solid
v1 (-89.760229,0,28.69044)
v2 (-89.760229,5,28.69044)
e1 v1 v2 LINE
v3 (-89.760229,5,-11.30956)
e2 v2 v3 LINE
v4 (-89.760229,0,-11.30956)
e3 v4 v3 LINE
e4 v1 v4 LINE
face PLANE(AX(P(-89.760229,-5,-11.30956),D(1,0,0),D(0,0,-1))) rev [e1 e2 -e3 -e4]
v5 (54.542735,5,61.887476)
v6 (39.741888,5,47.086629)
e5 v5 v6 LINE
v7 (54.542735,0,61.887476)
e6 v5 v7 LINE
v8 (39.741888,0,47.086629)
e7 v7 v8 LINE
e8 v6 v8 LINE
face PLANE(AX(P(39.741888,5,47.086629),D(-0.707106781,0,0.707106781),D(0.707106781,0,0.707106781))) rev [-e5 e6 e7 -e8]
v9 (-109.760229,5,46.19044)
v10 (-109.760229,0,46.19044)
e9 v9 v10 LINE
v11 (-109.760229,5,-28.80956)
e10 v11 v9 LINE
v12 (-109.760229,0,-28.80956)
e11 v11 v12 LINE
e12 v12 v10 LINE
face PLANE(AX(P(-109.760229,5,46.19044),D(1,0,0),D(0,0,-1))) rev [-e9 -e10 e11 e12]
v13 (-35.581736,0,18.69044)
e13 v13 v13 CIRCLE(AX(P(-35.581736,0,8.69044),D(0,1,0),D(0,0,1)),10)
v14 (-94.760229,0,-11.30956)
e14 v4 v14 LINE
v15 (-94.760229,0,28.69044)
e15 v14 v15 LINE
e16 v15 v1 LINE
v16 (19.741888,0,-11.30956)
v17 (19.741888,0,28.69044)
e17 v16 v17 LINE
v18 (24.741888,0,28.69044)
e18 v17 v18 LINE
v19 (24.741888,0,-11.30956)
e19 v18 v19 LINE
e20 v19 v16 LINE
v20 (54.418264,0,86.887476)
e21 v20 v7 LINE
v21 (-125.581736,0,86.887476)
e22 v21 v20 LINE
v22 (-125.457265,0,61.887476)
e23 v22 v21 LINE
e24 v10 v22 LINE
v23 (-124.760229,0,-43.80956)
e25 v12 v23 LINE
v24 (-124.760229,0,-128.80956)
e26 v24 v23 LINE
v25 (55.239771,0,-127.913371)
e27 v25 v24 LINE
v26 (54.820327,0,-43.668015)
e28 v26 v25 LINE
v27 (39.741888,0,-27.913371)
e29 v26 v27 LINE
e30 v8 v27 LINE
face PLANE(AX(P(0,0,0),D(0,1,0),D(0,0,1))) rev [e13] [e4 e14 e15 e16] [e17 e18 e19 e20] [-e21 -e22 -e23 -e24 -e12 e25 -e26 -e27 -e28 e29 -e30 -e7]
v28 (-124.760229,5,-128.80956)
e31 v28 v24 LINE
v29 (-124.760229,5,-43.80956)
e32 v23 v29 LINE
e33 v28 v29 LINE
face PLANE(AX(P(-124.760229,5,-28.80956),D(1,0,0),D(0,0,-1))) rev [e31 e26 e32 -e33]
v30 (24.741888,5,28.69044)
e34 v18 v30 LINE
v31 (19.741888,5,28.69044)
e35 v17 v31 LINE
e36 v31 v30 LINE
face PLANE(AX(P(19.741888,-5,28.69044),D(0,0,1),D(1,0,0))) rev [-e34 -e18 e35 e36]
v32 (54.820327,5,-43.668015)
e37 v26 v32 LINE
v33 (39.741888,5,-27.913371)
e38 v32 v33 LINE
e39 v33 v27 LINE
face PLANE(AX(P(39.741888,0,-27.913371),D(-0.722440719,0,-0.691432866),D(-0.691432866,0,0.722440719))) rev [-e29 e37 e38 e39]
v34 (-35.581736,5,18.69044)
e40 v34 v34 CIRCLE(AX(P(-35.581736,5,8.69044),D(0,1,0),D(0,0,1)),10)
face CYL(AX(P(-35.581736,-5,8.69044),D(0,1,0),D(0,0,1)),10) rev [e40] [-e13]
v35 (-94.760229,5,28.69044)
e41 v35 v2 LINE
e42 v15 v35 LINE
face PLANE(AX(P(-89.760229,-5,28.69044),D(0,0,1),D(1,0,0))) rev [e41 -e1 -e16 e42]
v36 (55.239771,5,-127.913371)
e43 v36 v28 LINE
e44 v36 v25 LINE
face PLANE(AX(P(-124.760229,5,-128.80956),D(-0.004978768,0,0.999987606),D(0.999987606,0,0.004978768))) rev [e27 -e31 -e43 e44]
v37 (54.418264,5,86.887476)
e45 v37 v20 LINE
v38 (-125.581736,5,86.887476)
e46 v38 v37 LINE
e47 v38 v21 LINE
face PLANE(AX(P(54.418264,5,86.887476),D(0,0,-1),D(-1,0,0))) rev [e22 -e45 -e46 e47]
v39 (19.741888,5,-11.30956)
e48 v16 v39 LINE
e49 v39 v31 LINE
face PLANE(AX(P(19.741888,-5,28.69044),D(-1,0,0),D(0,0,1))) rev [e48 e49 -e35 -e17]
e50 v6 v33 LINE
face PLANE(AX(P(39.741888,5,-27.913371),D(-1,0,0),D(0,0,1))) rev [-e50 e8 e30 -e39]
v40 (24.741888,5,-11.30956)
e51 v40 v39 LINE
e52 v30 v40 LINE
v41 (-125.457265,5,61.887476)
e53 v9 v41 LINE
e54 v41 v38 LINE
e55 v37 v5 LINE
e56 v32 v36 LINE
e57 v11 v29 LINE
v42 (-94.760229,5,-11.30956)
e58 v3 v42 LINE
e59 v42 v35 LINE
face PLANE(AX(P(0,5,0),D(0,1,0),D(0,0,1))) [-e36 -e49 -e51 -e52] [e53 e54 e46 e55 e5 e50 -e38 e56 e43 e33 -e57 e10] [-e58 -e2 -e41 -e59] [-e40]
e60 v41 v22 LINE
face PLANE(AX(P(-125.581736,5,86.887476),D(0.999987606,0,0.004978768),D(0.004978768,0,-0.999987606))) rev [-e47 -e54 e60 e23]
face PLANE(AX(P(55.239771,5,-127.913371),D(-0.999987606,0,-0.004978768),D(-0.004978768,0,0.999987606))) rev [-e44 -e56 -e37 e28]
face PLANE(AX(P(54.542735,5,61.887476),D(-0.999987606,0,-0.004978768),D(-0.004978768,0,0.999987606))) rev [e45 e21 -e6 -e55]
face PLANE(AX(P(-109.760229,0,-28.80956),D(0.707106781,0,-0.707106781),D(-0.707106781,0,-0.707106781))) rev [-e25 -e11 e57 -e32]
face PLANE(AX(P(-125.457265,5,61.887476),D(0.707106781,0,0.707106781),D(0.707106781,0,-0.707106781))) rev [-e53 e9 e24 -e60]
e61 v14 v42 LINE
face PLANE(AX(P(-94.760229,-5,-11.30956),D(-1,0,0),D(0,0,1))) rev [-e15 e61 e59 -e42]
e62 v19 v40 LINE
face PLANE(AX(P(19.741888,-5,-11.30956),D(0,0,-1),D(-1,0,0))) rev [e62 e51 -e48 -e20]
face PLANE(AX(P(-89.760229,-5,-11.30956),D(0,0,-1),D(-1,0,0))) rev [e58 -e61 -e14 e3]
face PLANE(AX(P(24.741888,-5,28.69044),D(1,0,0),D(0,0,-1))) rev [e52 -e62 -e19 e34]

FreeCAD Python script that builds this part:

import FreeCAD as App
import Part
import Sketcher
from FreeCAD import Vector
Q = App.Units.Quantity

doc = App.newDocument("Part")
body = doc.addObject("PartDesign::Body", "Body")

# Sketch on XZ plane
sketch1 = body.newObject("Sketcher::SketchObject", "Sketch")
sketch1.AttachmentSupport = (doc.getObject("XZ_Plane"), [""])
sketch1.MapMode = "FlatFace"
sketch1.addGeometry([
    Part.LineSegment(Vector(55, -128, 0), Vector(-125, -129, 0)),  # 0
    Part.LineSegment(Vector(-125, -129, 0), Vector(-125, -29, 0)),  # 1
    Part.LineSegment(Vector(-125, -29, 0), Vector(-110, -29, 0)),  # 2
    Part.LineSegment(Vector(-110, -29, 0), Vector(-110, 46, 0)),  # 3
    Part.LineSegment(Vector(-110, 46, 0), Vector(-125, 62, 0)),  # 4
    Part.LineSegment(Vector(-125, 62, 0), Vector(-126, 87, 0)),  # 5
    Part.LineSegment(Vector(-126, 87, 0), Vector(54, 87, 0)),  # 6
    Part.LineSegment(Vector(54, 87, 0), Vector(55, 62, 0)),  # 7
    Part.LineSegment(Vector(55, 62, 0), Vector(40, 47, 0)),  # 8
    Part.LineSegment(Vector(40, 47, 0), Vector(40, -28, 0)),  # 9
    Part.LineSegment(Vector(40, -28, 0), Vector(55, -28, 0)),  # 10
    Part.LineSegment(Vector(55, -28, 0), Vector(55, -128, 0)),  # 11
], False)
sketch1.addConstraint([
    Sketcher.Constraint("Coincident", 0, 2, 1, 1),
    Sketcher.Constraint("Coincident", 1, 2, 2, 1),
    Sketcher.Constraint("Coincident", 2, 2, 3, 1),
    Sketcher.Constraint("Coincident", 3, 2, 4, 1),
    Sketcher.Constraint("Coincident", 4, 2, 5, 1),
    Sketcher.Constraint("Coincident", 5, 2, 6, 1),
    Sketcher.Constraint("Coincident", 6, 2, 7, 1),
    Sketcher.Constraint("Coincident", 7, 2, 8, 1),
    Sketcher.Constraint("Coincident", 8, 2, 9, 1),
    Sketcher.Constraint("Coincident", 9, 2, 10, 1),
    Sketcher.Constraint("Coincident", 10, 2, 11, 1),
    Sketcher.Constraint("Coincident", 11, 2, 0, 1),
    Sketcher.Constraint("Vertical", 1),
    Sketcher.Constraint("Horizontal", 2),
    Sketcher.Constraint("Vertical", 3),
    Sketcher.Constraint("Horizontal", 6),
    Sketcher.Constraint("Vertical", 9),
    Sketcher.Constraint("Horizontal", 10),
    Sketcher.Constraint("Perpendicular", 0, 5),
    Sketcher.Constraint("Parallel", 5, 7),
    Sketcher.Constraint("Perpendicular", 4, 8),
    Sketcher.Constraint("Parallel", 7, 11),
    Sketcher.Constraint("Horizontal", 4, 2, 7, 2),
    Sketcher.Constraint("Equal", 2, 10),
    Sketcher.Constraint("Equal", 3, 9),
    Sketcher.Constraint("DistanceX", 2, 1, 2, 2, Q("15 mm")),
    Sketcher.Constraint("DistanceX", 6, 1, 6, 2, Q("180 mm")),
    Sketcher.Constraint("DistanceY", 1, 1, 1, 2, Q("100 mm")),
    Sketcher.Constraint("DistanceY", 3, 1, 3, 2, Q("75 mm")),
    Sketcher.Constraint("Angle", 4, Q("135 deg")),
    Sketcher.Constraint("DistanceY", 4, 2, 5, 2, Q("25 mm")),
    Sketcher.Constraint("DistanceY", 11, 2, 10, 2, Q("100 mm")),
    Sketcher.Constraint("DistanceX", 0, 2, 11, 2, Q("180 mm")),
    Sketcher.Constraint("Distance", 4, Q("22.198961 mm")),
    Sketcher.Constraint("DistanceX", 0, 2, -1, 1, Q("124.760229 mm")),
    Sketcher.Constraint("DistanceY", 0, 2, -1, 1, Q("128.80956 mm")),
])
pad1 = body.newObject("PartDesign::Pad", "Pad")
pad1.Profile = sketch1
pad1.Length = 5
pad1.Reversed = True

# Sketch on XZ plane
sketch2 = body.newObject("Sketcher::SketchObject", "Sketch001")
sketch2.AttachmentSupport = (doc.getObject("XZ_Plane"), [""])
sketch2.MapMode = "FlatFace"
sketch2.AttachmentOffset = App.Placement(Vector(0, 0, -5), App.Rotation())
sketch2.addGeometry([
    Part.LineSegment(Vector(-110, -29, 0), Vector(-125, -44, 0)),  # 0
    Part.LineSegment(Vector(-125, -44, 0), Vector(-125, -29, 0)),  # 1
    Part.LineSegment(Vector(-125, -29, 0), Vector(-110, -29, 0)),  # 2
    Part.LineSegment(Vector(55, -44, 0), Vector(40, -28, 0)),  # 3
    Part.LineSegment(Vector(40, -28, 0), Vector(55, -28, 0)),  # 4
    Part.LineSegment(Vector(55, -28, 0), Vector(55, -44, 0)),  # 5
], False)
sketch2.addConstraint([
    Sketcher.Constraint("Coincident", 0, 2, 1, 1),
    Sketcher.Constraint("Coincident", 1, 2, 2, 1),
    Sketcher.Constraint("Coincident", 2, 2, 0, 1),
    Sketcher.Constraint("Coincident", 3, 2, 4, 1),
    Sketcher.Constraint("Coincident", 4, 2, 5, 1),
    Sketcher.Constraint("Coincident", 5, 2, 3, 1),
    Sketcher.Constraint("Vertical", 1),
    Sketcher.Constraint("Horizontal", 2),
    Sketcher.Constraint("Horizontal", 4),
    Sketcher.Constraint("Equal", 2, 4),
    Sketcher.Constraint("Equal", 4, 1),
    Sketcher.Constraint("DistanceX", 2, 1, 2, 2, Q("15 mm")),
    Sketcher.Constraint("Distance", 5, Q("15.75484 mm")),
    Sketcher.Constraint("DistanceX", 0, 2, -1, 1, Q("124.760229 mm")),
    Sketcher.Constraint("DistanceY", 0, 2, -1, 1, Q("43.80956 mm")),
    Sketcher.Constraint("DistanceY", 3, 2, -1, 1, Q("27.913371 mm")),
    Sketcher.Constraint("DistanceX", 4, 2, 5, 2, Q("0.07844 mm")),
    Sketcher.Constraint("DistanceX", -1, 1, 3, 2, Q("39.741888 mm")),
])
pocket1 = body.newObject("PartDesign::Pocket", "Pocket")
pocket1.Profile = sketch2
pocket1.Length = 5
pocket1.Reversed = True

# Sketch on XZ plane
sketch3 = body.newObject("Sketcher::SketchObject", "Sketch002")
sketch3.AttachmentSupport = (doc.getObject("XZ_Plane"), [""])
sketch3.MapMode = "FlatFace"
sketch3.AttachmentOffset = App.Placement(Vector(0, 0, -5), App.Rotation())
sketch3.addGeometry([
    Part.LineSegment(Vector(-95, -11, 0), Vector(-95, 29, 0)),  # 0
    Part.LineSegment(Vector(-95, 29, 0), Vector(-90, 29, 0)),  # 1
    Part.LineSegment(Vector(-90, 29, 0), Vector(-90, -11, 0)),  # 2
    Part.LineSegment(Vector(-90, -11, 0), Vector(-95, -11, 0)),  # 3
    Part.LineSegment(Vector(20, -11, 0), Vector(20, 29, 0)),  # 4
    Part.LineSegment(Vector(20, 29, 0), Vector(25, 29, 0)),  # 5
    Part.LineSegment(Vector(25, 29, 0), Vector(25, -11, 0)),  # 6
    Part.LineSegment(Vector(25, -11, 0), Vector(20, -11, 0)),  # 7
], False)
sketch3.addConstraint([
    Sketcher.Constraint("Coincident", 0, 2, 1, 1),
    Sketcher.Constraint("Coincident", 1, 2, 2, 1),
    Sketcher.Constraint("Coincident", 2, 2, 3, 1),
    Sketcher.Constraint("Coincident", 3, 2, 0, 1),
    Sketcher.Constraint("Coincident", 4, 2, 5, 1),
    Sketcher.Constraint("Coincident", 5, 2, 6, 1),
    Sketcher.Constraint("Coincident", 6, 2, 7, 1),
    Sketcher.Constraint("Coincident", 7, 2, 4, 1),
    Sketcher.Constraint("Vertical", 0),
    Sketcher.Constraint("Horizontal", 1),
    Sketcher.Constraint("Vertical", 2),
    Sketcher.Constraint("Horizontal", 3),
    Sketcher.Constraint("Vertical", 4),
    Sketcher.Constraint("Horizontal", 5),
    Sketcher.Constraint("Vertical", 6),
    Sketcher.Constraint("Horizontal", 7),
    Sketcher.Constraint("Horizontal", 1, 2, 4, 2),
    Sketcher.Constraint("Horizontal", 3, 2, 6, 2),
    Sketcher.Constraint("Equal", 3, 5),
    Sketcher.Constraint("DistanceX", 1, 1, 1, 2, Q("5 mm")),
    Sketcher.Constraint("DistanceY", 0, 1, 0, 2, Q("40 mm")),
    Sketcher.Constraint("DistanceX", 0, 2, -1, 1, Q("94.760229 mm")),
    Sketcher.Constraint("DistanceY", -1, 1, 0, 2, Q("28.69044 mm")),
    Sketcher.Constraint("DistanceX", -1, 1, 4, 2, Q("19.741888 mm")),
])
pocket2 = body.newObject("PartDesign::Pocket", "Pocket001")
pocket2.Profile = sketch3
pocket2.Length = 10
pocket2.Reversed = True

# Sketch on XZ plane
sketch4 = body.newObject("Sketcher::SketchObject", "Sketch003")
sketch4.AttachmentSupport = (doc.getObject("XZ_Plane"), [""])
sketch4.MapMode = "FlatFace"
sketch4.AttachmentOffset = App.Placement(Vector(0, 0, -5), App.Rotation())
sketch4.addGeometry(Part.Circle(Vector(-36, 9, 0), Vector(0, 0, 1), 10), False)
sketch4.addConstraint([
    Sketcher.Constraint("Diameter", 0, Q("20 mm")),
    Sketcher.Constraint("DistanceY", -1, 1, 0, 3, Q("8.69044 mm")),
    Sketcher.Constraint("DistanceX", 0, 3, -1, 1, Q("35.581736 mm")),
])
pocket3 = body.newObject("PartDesign::Pocket", "Pocket002")
pocket3.Profile = sketch4
pocket3.Length = 10
pocket3.Reversed = True

doc.recompute()
